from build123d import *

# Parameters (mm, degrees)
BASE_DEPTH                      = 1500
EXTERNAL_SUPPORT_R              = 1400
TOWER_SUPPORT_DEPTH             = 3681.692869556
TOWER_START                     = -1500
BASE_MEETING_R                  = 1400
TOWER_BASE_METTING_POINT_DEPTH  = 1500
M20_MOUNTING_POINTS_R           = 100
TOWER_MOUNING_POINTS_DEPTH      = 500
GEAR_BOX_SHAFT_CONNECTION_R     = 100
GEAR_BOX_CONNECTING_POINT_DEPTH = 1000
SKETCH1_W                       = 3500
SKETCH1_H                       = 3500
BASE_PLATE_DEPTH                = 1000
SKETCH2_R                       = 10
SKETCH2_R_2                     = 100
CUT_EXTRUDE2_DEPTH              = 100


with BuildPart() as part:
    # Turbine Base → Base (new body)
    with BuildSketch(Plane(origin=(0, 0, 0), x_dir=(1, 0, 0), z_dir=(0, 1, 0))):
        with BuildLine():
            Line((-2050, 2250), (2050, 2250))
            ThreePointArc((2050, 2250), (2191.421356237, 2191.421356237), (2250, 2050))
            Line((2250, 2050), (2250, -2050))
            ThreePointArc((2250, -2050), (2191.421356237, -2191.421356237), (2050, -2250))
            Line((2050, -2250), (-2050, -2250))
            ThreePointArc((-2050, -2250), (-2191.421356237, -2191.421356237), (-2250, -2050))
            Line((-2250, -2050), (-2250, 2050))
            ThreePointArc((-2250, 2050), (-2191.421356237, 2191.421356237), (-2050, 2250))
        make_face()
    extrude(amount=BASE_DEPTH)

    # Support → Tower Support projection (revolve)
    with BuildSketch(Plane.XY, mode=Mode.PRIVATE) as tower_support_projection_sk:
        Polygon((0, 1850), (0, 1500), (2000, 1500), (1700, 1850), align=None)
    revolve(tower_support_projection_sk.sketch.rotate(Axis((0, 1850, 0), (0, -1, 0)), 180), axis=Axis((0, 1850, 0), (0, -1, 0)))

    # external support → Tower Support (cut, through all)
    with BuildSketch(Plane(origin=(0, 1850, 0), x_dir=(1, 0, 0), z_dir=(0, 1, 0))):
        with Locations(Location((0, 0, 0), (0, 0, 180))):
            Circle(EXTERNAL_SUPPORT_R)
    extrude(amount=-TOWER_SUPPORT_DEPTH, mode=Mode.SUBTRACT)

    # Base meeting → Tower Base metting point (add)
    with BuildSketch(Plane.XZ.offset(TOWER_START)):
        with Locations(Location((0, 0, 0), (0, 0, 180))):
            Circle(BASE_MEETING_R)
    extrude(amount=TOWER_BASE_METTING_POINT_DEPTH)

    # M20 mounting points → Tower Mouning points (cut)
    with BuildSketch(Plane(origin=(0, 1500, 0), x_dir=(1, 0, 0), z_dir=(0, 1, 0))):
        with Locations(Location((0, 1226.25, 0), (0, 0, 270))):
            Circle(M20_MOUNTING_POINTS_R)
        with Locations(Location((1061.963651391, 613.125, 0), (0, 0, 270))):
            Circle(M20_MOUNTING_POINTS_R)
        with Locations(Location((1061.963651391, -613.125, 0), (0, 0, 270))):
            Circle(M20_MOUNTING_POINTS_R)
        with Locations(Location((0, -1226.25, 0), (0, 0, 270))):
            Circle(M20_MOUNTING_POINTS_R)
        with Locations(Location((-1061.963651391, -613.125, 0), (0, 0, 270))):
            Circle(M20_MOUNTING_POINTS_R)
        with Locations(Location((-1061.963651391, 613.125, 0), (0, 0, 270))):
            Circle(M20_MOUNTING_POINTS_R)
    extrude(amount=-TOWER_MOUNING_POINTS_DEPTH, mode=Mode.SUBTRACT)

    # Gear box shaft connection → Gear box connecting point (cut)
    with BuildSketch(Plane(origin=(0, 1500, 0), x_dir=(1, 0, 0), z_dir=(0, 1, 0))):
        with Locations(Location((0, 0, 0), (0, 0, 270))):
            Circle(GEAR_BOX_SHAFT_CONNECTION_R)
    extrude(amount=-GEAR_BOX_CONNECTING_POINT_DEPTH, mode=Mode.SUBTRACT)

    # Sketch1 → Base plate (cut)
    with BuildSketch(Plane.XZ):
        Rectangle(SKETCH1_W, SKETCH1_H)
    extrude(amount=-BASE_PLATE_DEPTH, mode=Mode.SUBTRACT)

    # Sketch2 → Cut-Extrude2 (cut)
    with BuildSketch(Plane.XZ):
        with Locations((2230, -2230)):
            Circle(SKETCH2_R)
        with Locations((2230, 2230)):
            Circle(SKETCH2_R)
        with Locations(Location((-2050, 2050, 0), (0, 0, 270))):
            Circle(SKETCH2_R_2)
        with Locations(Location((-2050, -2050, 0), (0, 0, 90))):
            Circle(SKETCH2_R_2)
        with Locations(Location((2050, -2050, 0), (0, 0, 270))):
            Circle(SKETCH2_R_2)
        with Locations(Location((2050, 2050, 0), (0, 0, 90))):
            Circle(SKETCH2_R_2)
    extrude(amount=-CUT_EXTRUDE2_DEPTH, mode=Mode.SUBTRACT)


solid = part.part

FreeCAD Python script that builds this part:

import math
import FreeCAD as App
import Part
import Sketcher
from FreeCAD import Vector
Q = App.Units.Quantity


def add_polygon(sketch, points):
    """Adds a closed chain of lines whose ends are joined by coincident constraints."""
    first, n = sketch.GeometryCount, len(points)
    for a, b in zip(points, points[1:] + points[:1]):
        sketch.addGeometry(Part.LineSegment(App.Vector(*a, 0), App.Vector(*b, 0)), False)
    for i in range(n):
        sketch.addConstraint(Sketcher.Constraint("Coincident", first + i, 2, first + (i + 1) % n, 1))

doc = App.newDocument("Part")
body = doc.addObject("PartDesign::Body", "Body")

# Sketch on XZ plane
sketch1 = body.newObject("Sketcher::SketchObject", "Sketch")
sketch1.AttachmentSupport = (doc.getObject("XZ_Plane"), [""])
sketch1.MapMode = "FlatFace"
sketch1.addGeometry(Part.LineSegment(Vector(2050, -2250, 0), Vector(-2050, -2250, 0)), False)
sketch1.addGeometry(Part.ArcOfCircle(Part.Circle(Vector(-2050, -2050, 0), Vector(0, 0, 1), 200), math.radians(-180), math.radians(-90)), False)
sketch1.addGeometry(Part.LineSegment(Vector(-2250, -2050, 0), Vector(-2250, 2050, 0)), False)
sketch1.addGeometry(Part.ArcOfCircle(Part.Circle(Vector(-2050, 2050, 0), Vector(0, 0, 1), 200), math.radians(90), math.radians(180)), False)
sketch1.addGeometry(Part.LineSegment(Vector(-2050, 2250, 0), Vector(2050, 2250, 0)), False)
sketch1.addGeometry(Part.ArcOfCircle(Part.Circle(Vector(2050, 2050, 0), Vector(0, 0, 1), 200), math.radians(0), math.radians(90)), False)
sketch1.addGeometry(Part.LineSegment(Vector(2250, 2050, 0), Vector(2250, -2050, 0)), False)
sketch1.addGeometry(Part.ArcOfCircle(Part.Circle(Vector(2050, -2050, 0), Vector(0, 0, 1), 200), math.radians(-90), math.radians(0)), False)
sketch1.addConstraint(Sketcher.Constraint("Tangent", 0, 2, 1, 2))
sketch1.addConstraint(Sketcher.Constraint("Tangent", 1, 1, 2, 1))
sketch1.addConstraint(Sketcher.Constraint("Tangent", 2, 2, 3, 2))
sketch1.addConstraint(Sketcher.Constraint("Tangent", 3, 1, 4, 1))
sketch1.addConstraint(Sketcher.Constraint("Tangent", 4, 2, 5, 2))
sketch1.addConstraint(Sketcher.Constraint("Tangent", 5, 1, 6, 1))
sketch1.addConstraint(Sketcher.Constraint("Tangent", 6, 2, 7, 2))
sketch1.addConstraint(Sketcher.Constraint("Tangent", 7, 1, 0, 1))
sketch1.addConstraint(Sketcher.Constraint("Horizontal", 0))
sketch1.addConstraint(Sketcher.Constraint("Vertical", 2))
sketch1.addConstraint(Sketcher.Constraint("Horizontal", 4))
sketch1.addConstraint(Sketcher.Constraint("Vertical", 6))
sketch1.addConstraint(Sketcher.Constraint("Equal", 1, 3))
sketch1.addConstraint(Sketcher.Constraint("Equal", 3, 5))
sketch1.addConstraint(Sketcher.Constraint("Equal", 5, 7))
sketch1.addConstraint(Sketcher.Constraint("Symmetric", 1, 3, 5, 3, -1, 1))
sketch1.addConstraint(Sketcher.Constraint("Equal", 4, 2))
sketch1.addConstraint(Sketcher.Constraint("Radius", 1, Q("200 mm")))
sketch1.addConstraint(Sketcher.Constraint("DistanceX", 0, 2, 0, 1, Q("4100 mm")))
pad1 = body.newObject("PartDesign::Pad", "Pad")
pad1.Profile = sketch1
pad1.Length = 1500
pad1.Reversed = True

# Sketch on XY plane
sketch2 = body.newObject("Sketcher::SketchObject", "Sketch001")
sketch2.AttachmentSupport = (doc.getObject("XY_Plane"), [""])
sketch2.MapMode = "FlatFace"
add_polygon(sketch2, [(0, 1850), (0, 1500), (2000, 1500), (1700, 1850)])  # lines 0-3
sketch2.addConstraint(Sketcher.Constraint("Vertical", 0))
sketch2.addConstraint(Sketcher.Constraint("Horizontal", 1))
sketch2.addConstraint(Sketcher.Constraint("Horizontal", 3))
sketch2.addConstraint(Sketcher.Constraint("PointOnObject", 0, 2, -2))
sketch2.addConstraint(Sketcher.Constraint("DistanceX", 1, 1, 1, 2, Q("2000 mm")))
sketch2.addConstraint(Sketcher.Constraint("DistanceX", 3, 2, 3, 1, Q("1700 mm")))
sketch2.addConstraint(Sketcher.Constraint("DistanceY", 0, 2, 0, 1, Q("350 mm")))
sketch2.addConstraint(Sketcher.Constraint("DistanceY", -1, 1, 0, 2, Q("1500 mm")))
revolution = body.newObject("PartDesign::Revolution", "Revolution")
revolution.Profile = sketch2
revolution.ReferenceAxis = (sketch2, ["V_Axis"])
revolution.Angle = 360

# Sketch on XZ plane
sketch3 = body.newObject("Sketcher::SketchObject", "Sketch002")
sketch3.AttachmentSupport = (doc.getObject("XZ_Plane"), [""])
sketch3.MapMode = "FlatFace"
sketch3.AttachmentOffset = App.Placement(Vector(0, 0, -1850), App.Rotation())
sketch3.addGeometry(Part.Circle(Vector(0, 0, 0), Vector(0, 0, 1), 1400), False)
sketch3.addConstraint(Sketcher.Constraint("Coincident", 0, 3, -1, 1))
sketch3.addConstraint(Sketcher.Constraint("Diameter", 0, Q("2800 mm")))
pocket1 = body.newObject("PartDesign::Pocket", "Pocket")
pocket1.Profile = sketch3
pocket1.Type = "ThroughAll"
pocket1.Reversed = True

# Sketch on XZ plane
sketch4 = body.newObject("Sketcher::SketchObject", "Sketch003")
sketch4.AttachmentSupport = (doc.getObject("XZ_Plane"), [""])
sketch4.MapMode = "FlatFace"
sketch4.AttachmentOffset = App.Placement(Vector(0, 0, -1500), App.Rotation())
sketch4.addGeometry(Part.Circle(Vector(0, 0, 0), Vector(0, 0, 1), 1400), False)
sketch4.addConstraint(Sketcher.Constraint("Coincident", 0, 3, -1, 1))
sketch4.addConstraint(Sketcher.Constraint("Diameter", 0, Q("2800 mm")))
pad2 = body.newObject("PartDesign::Pad", "Pad001")
pad2.Profile = sketch4
pad2.Length = 1500

# Sketch on XZ plane
sketch5 = body.newObject("Sketcher::SketchObject", "Sketch004")
sketch5.AttachmentSupport = (doc.getObject("XZ_Plane"), [""])
sketch5.MapMode = "FlatFace"
sketch5.AttachmentOffset = App.Placement(Vector(0, 0, -1500), App.Rotation())
sketch5.addGeometry(Part.Circle(Vector(0, -1226, 0), Vector(0, 0, 1), 100), False)
sketch5.addGeometry(Part.Circle(Vector(1062, -613, 0), Vector(0, 0, 1), 100), False)
sketch5.addGeometry(Part.Circle(Vector(1062, 613, 0), Vector(0, 0, 1), 100), False)
sketch5.addGeometry(Part.Circle(Vector(0, 1226, 0), Vector(0, 0, 1), 100), False)
sketch5.addGeometry(Part.Circle(Vector(-1062, 613, 0), Vector(0, 0, 1), 100), False)
sketch5.addGeometry(Part.Circle(Vector(-1062, -613, 0), Vector(0, 0, 1), 100), False)
sketch5.addConstraint(Sketcher.Constraint("Equal", 0, 1))
sketch5.addConstraint(Sketcher.Constraint("Equal", 1, 2))
sketch5.addConstraint(Sketcher.Constraint("Equal", 2, 3))
sketch5.addConstraint(Sketcher.Constraint("Equal", 3, 4))
sketch5.addConstraint(Sketcher.Constraint("Equal", 4, 5))
sketch5.addConstraint(Sketcher.Constraint("Symmetric", 0, 3, 3, 3, -1, 1))
sketch5.addConstraint(Sketcher.Constraint("Symmetric", 1, 3, 4, 3, -1, 1))
sketch5.addConstraint(Sketcher.Constraint("Symmetric", 2, 3, 5, 3, -1, 1))
sketch5.addConstraint(Sketcher.Constraint("Symmetric", 2, 3, 4, 3, -2))
sketch5.addConstraint(Sketcher.Constraint("PointOnObject", 0, 3, -2))
sketch5.addConstraint(Sketcher.Constraint("Diameter", 0, Q("200 mm")))
sketch5.addConstraint(Sketcher.Constraint("DistanceY", 0, 3, 3, 3, Q("2452.5 mm")))
sketch5.addConstraint(Sketcher.Constraint("DistanceY", 1, 3, 2, 3, Q("1226.25 mm")))
sketch5.addConstraint(Sketcher.Constraint("DistanceX", -1, 1, 1, 3, Q("1061.963651 mm")))
pocket2 = body.newObject("PartDesign::Pocket", "Pocket001")
pocket2.Profile = sketch5
pocket2.Length = 500
pocket2.Reversed = True

# Sketch on XZ plane
sketch6 = body.newObject("Sketcher::SketchObject", "Sketch005")
sketch6.AttachmentSupport = (doc.getObject("XZ_Plane"), [""])
sketch6.MapMode = "FlatFace"
sketch6.AttachmentOffset = App.Placement(Vector(0, 0, -1500), App.Rotation())
sketch6.addGeometry(Part.Circle(Vector(0, 0, 0), Vector(0, 0, 1), 100), False)
sketch6.addConstraint(Sketcher.Constraint("Coincident", 0, 3, -1, 1))
sketch6.addConstraint(Sketcher.Constraint("Diameter", 0, Q("200 mm")))
pocket3 = body.newObject("PartDesign::Pocket", "Pocket002")
pocket3.Profile = sketch6
pocket3.Length = 1000
pocket3.Reversed = True

# Sketch on XZ plane
sketch7 = body.newObject("Sketcher::SketchObject", "Sketch006")
sketch7.AttachmentSupport = (doc.getObject("XZ_Plane"), [""])
sketch7.MapMode = "FlatFace"
add_polygon(sketch7, [(-1750, 1750), (-1750, -1750), (1750, -1750), (1750, 1750)])  # lines 0-3
sketch7.addConstraint(Sketcher.Constraint("Vertical", 0))
sketch7.addConstraint(Sketcher.Constraint("Horizontal", 1))
sketch7.addConstraint(Sketcher.Constraint("Vertical", 2))
sketch7.addConstraint(Sketcher.Constraint("Horizontal", 3))
sketch7.addConstraint(Sketcher.Constraint("Symmetric", 0, 2, 2, 2, -1, 1))
sketch7.addConstraint(Sketcher.Constraint("Equal", 3, 0))
sketch7.addConstraint(Sketcher.Constraint("DistanceX", 1, 1, 1, 2, Q("3500 mm")))
pocket4 = body.newObject("PartDesign::Pocket", "Pocket003")
pocket4.Profile = sketch7
pocket4.Length = 1000

# Sketch on XZ plane
sketch8 = body.newObject("Sketcher::SketchObject", "Sketch007")
sketch8.AttachmentSupport = (doc.getObject("XZ_Plane"), [""])
sketch8.MapMode = "FlatFace"
sketch8.addGeometry(Part.Circle(Vector(2230, -2230, 0), Vector(0, 0, 1), 10), False)
sketch8.addGeometry(Part.Circle(Vector(2230, 2230, 0), Vector(0, 0, 1), 10), False)
sketch8.addGeometry(Part.Circle(Vector(-2050, 2050, 0), Vector(0, 0, 1), 100), False)
sketch8.addGeometry(Part.Circle(Vector(-2050, -2050, 0), Vector(0, 0, 1), 100), False)
sketch8.addGeometry(Part.Circle(Vector(2050, -2050, 0), Vector(0, 0, 1), 100), False)
sketch8.addGeometry(Part.Circle(Vector(2050, 2050, 0), Vector(0, 0, 1), 100), False)
sketch8.addConstraint(Sketcher.Constraint("Equal", 0, 1))
sketch8.addConstraint(Sketcher.Constraint("Equal", 2, 3))
sketch8.addConstraint(Sketcher.Constraint("Equal", 3, 4))
sketch8.addConstraint(Sketcher.Constraint("Equal", 4, 5))
sketch8.addConstraint(Sketcher.Constraint("Symmetric", 2, 3, 4, 3, -1, 1))
sketch8.addConstraint(Sketcher.Constraint("Symmetric", 3, 3, 5, 3, -1, 1))
sketch8.addConstraint(Sketcher.Constraint("Symmetric", 3, 3, 4, 3, -2))
sketch8.addConstraint(Sketcher.Constraint("Symmetric", 0, 3, 1, 3, -1))
sketch8.addConstraint(Sketcher.Constraint("Diameter", 0, Q("20 mm")))
sketch8.addConstraint(Sketcher.Constraint("Diameter", 2, Q("200 mm")))
sketch8.addConstraint(Sketcher.Constraint("DistanceX", -1, 1, 0, 3, Q("2230 mm")))
sketch8.addConstraint(Sketcher.Constraint("DistanceY", 0, 3, -1, 1, Q("2230 mm")))
sketch8.addConstraint(Sketcher.Constraint("DistanceX", 2, 3, -1, 1, Q("2050 mm")))
sketch8.addConstraint(Sketcher.Constraint("DistanceY", -1, 1, 2, 3, Q("2050 mm")))
pocket5 = body.newObject("PartDesign::Pocket", "Pocket004")
pocket5.Profile = sketch8
pocket5.Length = 100

doc.recompute()
